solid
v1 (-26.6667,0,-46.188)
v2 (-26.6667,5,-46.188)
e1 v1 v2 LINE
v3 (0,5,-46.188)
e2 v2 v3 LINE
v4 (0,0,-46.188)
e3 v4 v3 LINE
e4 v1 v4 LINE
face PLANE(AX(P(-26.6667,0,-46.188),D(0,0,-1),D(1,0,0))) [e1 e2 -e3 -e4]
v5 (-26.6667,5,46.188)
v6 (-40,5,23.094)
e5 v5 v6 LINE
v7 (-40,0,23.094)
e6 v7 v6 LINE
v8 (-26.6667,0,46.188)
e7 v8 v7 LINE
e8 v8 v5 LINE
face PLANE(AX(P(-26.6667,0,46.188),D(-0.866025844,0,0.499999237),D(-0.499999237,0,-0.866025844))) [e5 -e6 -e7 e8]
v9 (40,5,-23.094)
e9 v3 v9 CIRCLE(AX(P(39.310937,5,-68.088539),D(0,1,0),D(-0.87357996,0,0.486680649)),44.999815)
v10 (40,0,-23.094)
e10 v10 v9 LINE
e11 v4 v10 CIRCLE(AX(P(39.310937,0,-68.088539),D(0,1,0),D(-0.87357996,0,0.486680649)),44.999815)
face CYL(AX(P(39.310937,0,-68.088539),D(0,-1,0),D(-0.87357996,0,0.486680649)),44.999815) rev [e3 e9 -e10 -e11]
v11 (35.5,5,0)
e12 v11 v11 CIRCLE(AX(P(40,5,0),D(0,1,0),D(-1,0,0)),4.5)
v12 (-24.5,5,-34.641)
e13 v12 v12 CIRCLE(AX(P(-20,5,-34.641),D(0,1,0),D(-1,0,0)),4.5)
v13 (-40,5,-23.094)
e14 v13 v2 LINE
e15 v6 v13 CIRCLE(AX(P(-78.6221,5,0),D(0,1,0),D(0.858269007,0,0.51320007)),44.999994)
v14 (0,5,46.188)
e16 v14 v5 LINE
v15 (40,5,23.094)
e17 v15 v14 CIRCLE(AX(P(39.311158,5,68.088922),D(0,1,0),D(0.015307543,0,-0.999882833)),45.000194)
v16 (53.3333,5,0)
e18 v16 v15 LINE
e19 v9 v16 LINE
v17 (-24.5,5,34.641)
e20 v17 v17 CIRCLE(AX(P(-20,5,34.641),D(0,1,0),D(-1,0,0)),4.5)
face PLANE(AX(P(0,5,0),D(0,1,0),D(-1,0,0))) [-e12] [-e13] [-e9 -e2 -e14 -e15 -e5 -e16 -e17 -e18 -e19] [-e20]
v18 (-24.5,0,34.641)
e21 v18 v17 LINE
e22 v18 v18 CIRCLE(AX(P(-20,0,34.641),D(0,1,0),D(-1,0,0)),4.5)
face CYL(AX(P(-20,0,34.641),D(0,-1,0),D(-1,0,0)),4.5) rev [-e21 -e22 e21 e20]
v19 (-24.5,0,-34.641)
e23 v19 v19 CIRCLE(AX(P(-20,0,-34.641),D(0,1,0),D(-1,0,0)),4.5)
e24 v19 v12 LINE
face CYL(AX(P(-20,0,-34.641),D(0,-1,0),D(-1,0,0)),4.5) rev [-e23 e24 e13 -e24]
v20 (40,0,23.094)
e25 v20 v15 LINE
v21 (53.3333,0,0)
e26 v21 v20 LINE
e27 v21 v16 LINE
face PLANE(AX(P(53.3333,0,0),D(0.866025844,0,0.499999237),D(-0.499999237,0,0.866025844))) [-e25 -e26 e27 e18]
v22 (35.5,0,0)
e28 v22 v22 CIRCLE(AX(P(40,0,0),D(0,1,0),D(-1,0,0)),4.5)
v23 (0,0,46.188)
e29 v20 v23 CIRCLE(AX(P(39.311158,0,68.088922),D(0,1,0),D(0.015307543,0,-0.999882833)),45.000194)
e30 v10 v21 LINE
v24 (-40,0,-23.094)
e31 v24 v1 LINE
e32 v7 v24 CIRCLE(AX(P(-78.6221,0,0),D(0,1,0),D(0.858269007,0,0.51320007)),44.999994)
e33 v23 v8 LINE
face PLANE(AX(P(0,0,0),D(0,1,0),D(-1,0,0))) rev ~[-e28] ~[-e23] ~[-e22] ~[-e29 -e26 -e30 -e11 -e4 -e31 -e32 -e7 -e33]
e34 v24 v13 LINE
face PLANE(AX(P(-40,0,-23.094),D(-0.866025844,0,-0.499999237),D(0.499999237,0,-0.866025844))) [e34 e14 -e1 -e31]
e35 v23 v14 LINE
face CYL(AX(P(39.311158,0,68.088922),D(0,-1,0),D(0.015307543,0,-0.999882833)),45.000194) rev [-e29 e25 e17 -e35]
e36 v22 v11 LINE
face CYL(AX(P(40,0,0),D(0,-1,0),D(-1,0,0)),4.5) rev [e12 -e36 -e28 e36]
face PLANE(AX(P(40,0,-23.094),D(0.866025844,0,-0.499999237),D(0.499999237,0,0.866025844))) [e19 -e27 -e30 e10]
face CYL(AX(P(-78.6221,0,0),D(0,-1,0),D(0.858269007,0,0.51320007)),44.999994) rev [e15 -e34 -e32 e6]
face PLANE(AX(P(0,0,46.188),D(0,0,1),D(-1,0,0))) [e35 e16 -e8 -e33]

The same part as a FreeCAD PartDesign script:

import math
import FreeCAD as App
import Part
import Sketcher
from FreeCAD import Vector
Q = App.Units.Quantity

doc = App.newDocument("Part")
body = doc.addObject("PartDesign::Body", "Body")

sketch1 = body.newObject("Sketcher::SketchObject", "Sketch")
sketch1.AttachmentSupport = (doc.getObject("XZ_Plane"), [""])
sketch1.MapMode = "FlatFace"
sketch1.addGeometry(Part.LineSegment(Vector(-26.6667, -46.188, 0), Vector(-40, -23.094, 0)), False)
sketch1.addGeometry(Part.ArcOfCircle(Part.Circle(Vector(-78.6221, 0, 0), Vector(0, 0, 1), 44.999994), math.radians(-30.877221), math.radians(30.877221)), False)
sketch1.addGeometry(Part.LineSegment(Vector(-40, 23.094, 0), Vector(-26.6667, 46.188, 0)), False)
sketch1.addGeometry(Part.LineSegment(Vector(-26.6667, 46.188, 0), Vector(0, 46.188, 0)), False)
sketch1.addGeometry(Part.ArcOfCircle(Part.Circle(Vector(39.3111, 68.0887, 0), Vector(0, 0, 1), 44.999973), math.radians(-150.87728), math.radians(-89.12283)), False)
sketch1.addGeometry(Part.LineSegment(Vector(40, 23.094, 0), Vector(53.3333, 0, 0)), False)
sketch1.addGeometry(Part.LineSegment(Vector(53.3333, 0, 0), Vector(40, -23.094, 0)), False)
sketch1.addGeometry(Part.ArcOfCircle(Part.Circle(Vector(39.3111, -68.0887, 0), Vector(0, 0, 1), 45.000036), math.radians(89.12283), math.radians(150.87728)), False)
sketch1.addGeometry(Part.LineSegment(Vector(0, -46.188, 0), Vector(-26.6667, -46.188, 0)), False)
sketch1.addGeometry(Part.Circle(Vector(-20, -34.641, 0), Vector(0, 0, 1), 4.5), False)
sketch1.addGeometry(Part.Circle(Vector(40, 0, 0), Vector(0, 0, 1), 4.5), False)
sketch1.addGeometry(Part.Circle(Vector(-20, 34.641, 0), Vector(0, 0, 1), 4.5), False)
sketch1.addConstraint(Sketcher.Constraint("Coincident", 0, 2, 1, 1))
sketch1.addConstraint(Sketcher.Constraint("Coincident", 1, 2, 2, 1))
sketch1.addConstraint(Sketcher.Constraint("Coincident", 2, 2, 3, 1))
sketch1.addConstraint(Sketcher.Constraint("Coincident", 3, 2, 4, 1))
sketch1.addConstraint(Sketcher.Constraint("Coincident", 4, 2, 5, 1))
sketch1.addConstraint(Sketcher.Constraint("Coincident", 5, 2, 6, 1))
sketch1.addConstraint(Sketcher.Constraint("Coincident", 6, 2, 7, 1))
sketch1.addConstraint(Sketcher.Constraint("Coincident", 7, 2, 8, 1))
sketch1.addConstraint(Sketcher.Constraint("Coincident", 8, 2, 0, 1))
sketch1.addConstraint(Sketcher.Constraint("Horizontal", 3))
sketch1.addConstraint(Sketcher.Constraint("Horizontal", 8))
sketch1.addConstraint(Sketcher.Constraint("Equal", 1, 4))
sketch1.addConstraint(Sketcher.Constraint("Equal", 4, 7))
sketch1.addConstraint(Sketcher.Constraint("Equal", 9, 10))
sketch1.addConstraint(Sketcher.Constraint("Equal", 10, 11))
sketch1.addConstraint(Sketcher.Constraint("Symmetric", 0, 2, 4, 2, -1, 1))
sketch1.addConstraint(Sketcher.Constraint("Symmetric", 1, 2, 6, 2, -1, 1))
sketch1.addConstraint(Sketcher.Constraint("Symmetric", 3, 2, 7, 2, -1, 1))
sketch1.addConstraint(Sketcher.Constraint("Symmetric", 1, 2, 4, 2, -2))
sketch1.addConstraint(Sketcher.Constraint("Symmetric", 9, 3, 11, 3, -1))
sketch1.addConstraint(Sketcher.Constraint("PointOnObject", 10, 3, -1))
sketch1.addConstraint(Sketcher.Constraint("PointOnObject", 3, 2, -2))
sketch1.addConstraint(Sketcher.Constraint("PointOnObject", 5, 2, -1))
sketch1.addConstraint(Sketcher.Constraint("Parallel", 0, 5))
sketch1.addConstraint(Sketcher.Constraint("Parallel", 2, 6))
sketch1.addConstraint(Sketcher.Constraint("Vertical", 10, 3, 4, 2))
sketch1.addConstraint(Sketcher.Constraint("Equal", 2, 5))
sketch1.addConstraint(Sketcher.Constraint("Diameter", 9, 9.0))
sketch1.addConstraint(Sketcher.Constraint("Radius", 1, 45.0))
sketch1.addConstraint(Sketcher.Constraint("Angle", 0, Q("120 deg")))
sketch1.addConstraint(Sketcher.Constraint("DistanceX", 9, 3, -1, 1, 20.0))
sketch1.addConstraint(Sketcher.Constraint("DistanceX", -1, 1, 10, 3, 40.0))
sketch1.addConstraint(Sketcher.Constraint("DistanceX", 3, 1, 3, 2, 26.6667))
sketch1.addConstraint(Sketcher.Constraint("DistanceY", 9, 3, -1, 1, 34.641))
pad1 = body.newObject("PartDesign::Pad", "Pad")
pad1.Profile = sketch1
pad1.Length = 5
pad1.Reversed = True

doc.recompute()
